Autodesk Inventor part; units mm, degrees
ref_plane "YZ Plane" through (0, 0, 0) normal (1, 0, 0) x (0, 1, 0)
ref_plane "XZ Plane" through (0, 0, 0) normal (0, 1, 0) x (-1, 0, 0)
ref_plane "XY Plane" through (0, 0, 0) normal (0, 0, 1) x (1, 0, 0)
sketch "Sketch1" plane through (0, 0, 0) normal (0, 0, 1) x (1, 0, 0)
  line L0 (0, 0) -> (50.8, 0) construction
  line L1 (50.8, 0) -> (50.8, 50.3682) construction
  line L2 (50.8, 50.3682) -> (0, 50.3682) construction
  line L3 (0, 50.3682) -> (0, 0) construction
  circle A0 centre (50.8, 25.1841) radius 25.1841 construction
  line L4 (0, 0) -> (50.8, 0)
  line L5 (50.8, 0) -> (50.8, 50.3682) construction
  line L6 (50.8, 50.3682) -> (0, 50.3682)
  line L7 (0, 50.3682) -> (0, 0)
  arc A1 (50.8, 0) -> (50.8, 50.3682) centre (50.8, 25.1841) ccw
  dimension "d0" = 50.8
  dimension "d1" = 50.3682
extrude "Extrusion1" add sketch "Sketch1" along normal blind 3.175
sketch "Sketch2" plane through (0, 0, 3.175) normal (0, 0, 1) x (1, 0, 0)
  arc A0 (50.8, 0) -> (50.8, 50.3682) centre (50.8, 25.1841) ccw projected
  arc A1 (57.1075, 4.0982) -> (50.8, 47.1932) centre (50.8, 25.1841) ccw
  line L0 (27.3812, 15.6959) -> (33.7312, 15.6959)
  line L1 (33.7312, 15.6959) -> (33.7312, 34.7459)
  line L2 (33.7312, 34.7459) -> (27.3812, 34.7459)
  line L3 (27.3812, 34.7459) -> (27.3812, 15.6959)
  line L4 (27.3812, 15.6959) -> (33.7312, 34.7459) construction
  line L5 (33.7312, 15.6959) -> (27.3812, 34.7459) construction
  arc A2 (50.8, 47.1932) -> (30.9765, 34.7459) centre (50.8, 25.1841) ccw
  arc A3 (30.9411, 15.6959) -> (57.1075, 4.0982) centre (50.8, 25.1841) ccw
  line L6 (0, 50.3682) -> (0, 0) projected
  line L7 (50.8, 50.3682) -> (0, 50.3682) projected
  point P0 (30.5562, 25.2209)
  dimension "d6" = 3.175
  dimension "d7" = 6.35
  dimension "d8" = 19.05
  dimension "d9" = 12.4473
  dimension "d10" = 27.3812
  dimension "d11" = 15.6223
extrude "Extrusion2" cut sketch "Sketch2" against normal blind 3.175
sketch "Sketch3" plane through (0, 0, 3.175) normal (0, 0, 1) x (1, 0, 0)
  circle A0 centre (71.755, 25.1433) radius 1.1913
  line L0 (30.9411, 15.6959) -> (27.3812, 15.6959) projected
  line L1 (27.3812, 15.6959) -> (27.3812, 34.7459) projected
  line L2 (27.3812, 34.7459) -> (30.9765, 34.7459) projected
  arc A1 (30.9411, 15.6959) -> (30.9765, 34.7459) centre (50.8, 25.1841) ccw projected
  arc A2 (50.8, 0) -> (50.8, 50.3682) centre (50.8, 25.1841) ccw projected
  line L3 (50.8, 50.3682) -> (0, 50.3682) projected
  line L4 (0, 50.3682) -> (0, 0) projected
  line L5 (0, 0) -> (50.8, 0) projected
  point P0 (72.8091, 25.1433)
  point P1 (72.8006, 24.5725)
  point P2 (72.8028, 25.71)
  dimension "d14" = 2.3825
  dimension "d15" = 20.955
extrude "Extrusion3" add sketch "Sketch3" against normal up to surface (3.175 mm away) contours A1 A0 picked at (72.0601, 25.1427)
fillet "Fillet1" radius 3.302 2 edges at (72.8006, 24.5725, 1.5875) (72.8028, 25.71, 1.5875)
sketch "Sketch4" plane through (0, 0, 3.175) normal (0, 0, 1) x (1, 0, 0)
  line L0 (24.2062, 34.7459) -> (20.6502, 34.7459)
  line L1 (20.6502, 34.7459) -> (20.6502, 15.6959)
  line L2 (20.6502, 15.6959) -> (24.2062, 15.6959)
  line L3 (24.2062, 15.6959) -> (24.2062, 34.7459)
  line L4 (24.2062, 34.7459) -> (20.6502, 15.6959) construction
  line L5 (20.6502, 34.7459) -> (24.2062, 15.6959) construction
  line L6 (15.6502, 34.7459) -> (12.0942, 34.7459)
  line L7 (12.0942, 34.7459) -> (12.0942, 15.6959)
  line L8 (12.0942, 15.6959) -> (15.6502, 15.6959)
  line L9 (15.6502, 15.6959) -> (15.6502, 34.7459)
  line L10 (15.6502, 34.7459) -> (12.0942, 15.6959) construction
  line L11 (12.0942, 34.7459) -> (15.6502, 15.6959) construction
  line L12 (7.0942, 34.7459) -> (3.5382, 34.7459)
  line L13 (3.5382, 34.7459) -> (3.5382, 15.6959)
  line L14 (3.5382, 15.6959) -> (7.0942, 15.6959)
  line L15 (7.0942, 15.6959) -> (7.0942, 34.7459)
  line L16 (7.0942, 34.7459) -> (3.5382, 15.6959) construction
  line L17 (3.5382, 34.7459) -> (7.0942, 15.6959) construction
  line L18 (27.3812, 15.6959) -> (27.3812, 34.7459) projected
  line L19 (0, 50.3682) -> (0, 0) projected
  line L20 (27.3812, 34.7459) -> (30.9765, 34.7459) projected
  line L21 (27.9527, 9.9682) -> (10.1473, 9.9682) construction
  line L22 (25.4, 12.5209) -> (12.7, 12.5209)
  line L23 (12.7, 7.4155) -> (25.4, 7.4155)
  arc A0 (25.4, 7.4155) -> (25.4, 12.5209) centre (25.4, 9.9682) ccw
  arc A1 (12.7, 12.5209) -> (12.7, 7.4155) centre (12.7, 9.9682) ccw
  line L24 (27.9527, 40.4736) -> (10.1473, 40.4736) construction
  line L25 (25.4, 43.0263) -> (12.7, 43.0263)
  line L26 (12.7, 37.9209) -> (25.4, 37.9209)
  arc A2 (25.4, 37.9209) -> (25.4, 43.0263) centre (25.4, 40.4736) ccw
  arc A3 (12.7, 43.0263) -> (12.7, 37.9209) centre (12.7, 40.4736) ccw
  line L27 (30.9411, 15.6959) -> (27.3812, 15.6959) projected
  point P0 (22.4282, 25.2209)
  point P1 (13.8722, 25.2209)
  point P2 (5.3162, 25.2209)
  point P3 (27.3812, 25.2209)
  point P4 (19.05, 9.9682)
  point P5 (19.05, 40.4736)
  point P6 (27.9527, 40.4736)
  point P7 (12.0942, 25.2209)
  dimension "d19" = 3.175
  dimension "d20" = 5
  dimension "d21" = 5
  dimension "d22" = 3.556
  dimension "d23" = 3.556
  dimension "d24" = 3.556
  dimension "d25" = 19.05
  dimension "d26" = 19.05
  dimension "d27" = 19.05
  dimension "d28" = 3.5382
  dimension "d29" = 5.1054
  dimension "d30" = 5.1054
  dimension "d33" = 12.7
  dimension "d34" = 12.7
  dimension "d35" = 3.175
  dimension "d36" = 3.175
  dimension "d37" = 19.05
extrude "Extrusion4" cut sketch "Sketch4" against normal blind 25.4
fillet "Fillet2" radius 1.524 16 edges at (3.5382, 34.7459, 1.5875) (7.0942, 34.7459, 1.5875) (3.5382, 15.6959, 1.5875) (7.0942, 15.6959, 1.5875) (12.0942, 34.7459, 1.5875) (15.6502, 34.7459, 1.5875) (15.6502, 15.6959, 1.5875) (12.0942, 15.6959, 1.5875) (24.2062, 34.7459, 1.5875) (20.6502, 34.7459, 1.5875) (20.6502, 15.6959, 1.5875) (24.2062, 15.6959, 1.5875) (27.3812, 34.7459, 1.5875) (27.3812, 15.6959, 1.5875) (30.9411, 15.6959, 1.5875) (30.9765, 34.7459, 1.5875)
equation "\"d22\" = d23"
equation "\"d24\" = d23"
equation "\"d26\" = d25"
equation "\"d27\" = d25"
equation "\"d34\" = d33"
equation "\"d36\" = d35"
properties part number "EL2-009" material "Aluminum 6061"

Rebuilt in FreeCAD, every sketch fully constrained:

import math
import FreeCAD as App
import Part
import Sketcher
from FreeCAD import Vector
Q = App.Units.Quantity


def edges_at(feature, points):
    """Names of the edges that pass closest to the given points."""
    edges = feature.Shape.Edges
    near = lambda p: min(range(len(edges)), key=lambda i: edges[i].distToShape(Part.Vertex(*p))[0])
    return sorted({f"Edge{near(p) + 1}" for p in points})


def add_polygon(sketch, points):
    """Adds a closed chain of lines whose ends are joined by coincident constraints."""
    first, n = sketch.GeometryCount, len(points)
    for a, b in zip(points, points[1:] + points[:1]):
        sketch.addGeometry(Part.LineSegment(App.Vector(*a, 0), App.Vector(*b, 0)), False)
    for i in range(n):
        sketch.addConstraint(Sketcher.Constraint("Coincident", first + i, 2, first + (i + 1) % n, 1))

doc = App.newDocument("Part")
body = doc.addObject("PartDesign::Body", "Body")

# Sketch on XY plane
sketch1 = doc.addObject("Sketcher::SketchObject", "Sketch")
body.addObject(sketch1)
sketch1.AttachmentSupport = (doc.XY_Plane, [""])
sketch1.MapMode = "FlatFace"
sketch1.addGeometry([
    Part.LineSegment(Vector(0, 50, 0), Vector(0, 0, 0)),
    Part.LineSegment(Vector(0, 0, 0), Vector(51, 0, 0)),
    Part.ArcOfCircle(Part.Circle(Vector(51, 25, 0), Vector(0, 0, 1), 25), math.radians(-90), math.radians(90)),
    Part.LineSegment(Vector(51, 50, 0), Vector(0, 50, 0)),
], False)
sketch1.addConstraint([
    Sketcher.Constraint("Coincident", 0, 2, 1, 1),
    Sketcher.Constraint("Tangent", 1, 2, 2, 1),
    Sketcher.Constraint("Tangent", 2, 2, 3, 1),
    Sketcher.Constraint("Coincident", 3, 2, 0, 1),
    Sketcher.Constraint("Vertical", 0),
    Sketcher.Constraint("Horizontal", 1),
    Sketcher.Constraint("Horizontal", 3),
    Sketcher.Constraint("Coincident", 0, 2, -1, 1),
    Sketcher.Constraint("DistanceX", 1, 1, 1, 2, Q("2 in")),
    Sketcher.Constraint("Radius", 2, Q("0.9915 in")),
])
pad1 = doc.addObject("PartDesign::Pad", "Pad")
body.addObject(pad1)
pad1.Profile = sketch1
pad1.Length = Q("0.125 in")

# Sketch on XY plane
sketch2 = doc.addObject("Sketcher::SketchObject", "Sketch001")
body.addObject(sketch2)
sketch2.AttachmentSupport = (doc.XY_Plane, [""])
sketch2.MapMode = "FlatFace"
sketch2.AttachmentOffset = App.Placement(Vector(0, 0, 0.125 * 25.4), App.Rotation())
sketch2.addGeometry([
    Part.ArcOfCircle(Part.Circle(Vector(50.8, 25.2, 0), Vector(0, 0, 1), 22), math.radians(-154), math.radians(-73)),  # 0
    Part.ArcOfCircle(Part.Circle(Vector(50.8, 25.2, 0), Vector(0, 0, 1), 22), math.radians(-73), math.radians(90)),  # 1
    Part.ArcOfCircle(Part.Circle(Vector(50.8, 25.2, 0), Vector(0, 0, 1), 22), math.radians(90), math.radians(154)),  # 2
    Part.LineSegment(Vector(31, 34.7, 0), Vector(27.4, 34.7, 0)),  # 3
    Part.LineSegment(Vector(27.4, 34.7, 0), Vector(27.4, 15.7, 0)),  # 4
    Part.LineSegment(Vector(27.4, 15.7, 0), Vector(30.9, 15.7, 0)),  # 5
], False)
sketch2.addConstraint([
    Sketcher.Constraint("Tangent", 0, 2, 1, 1),
    Sketcher.Constraint("Tangent", 1, 2, 2, 1),
    Sketcher.Constraint("Coincident", 2, 2, 3, 1),
    Sketcher.Constraint("Coincident", 3, 2, 4, 1),
    Sketcher.Constraint("Coincident", 4, 2, 5, 1),
    Sketcher.Constraint("Coincident", 5, 2, 0, 1),
    Sketcher.Constraint("Horizontal", 3),
    Sketcher.Constraint("Vertical", 4),
    Sketcher.Constraint("Horizontal", 5),
    Sketcher.Constraint("Coincident", 2, 3, 0, 3),
    Sketcher.Constraint("Vertical", 2, 3, 1, 2),
    Sketcher.Constraint("DistanceY", 4, 2, 4, 1, Q("0.75 in")),
    Sketcher.Constraint("DistanceX", -1, 1, 0, 3, Q("2 in")),
    Sketcher.Constraint("DistanceX", -1, 1, 3, 2, Q("1.078 in")),
    Sketcher.Constraint("Radius", 0, Q("0.8665 in")),
    Sketcher.Constraint("DistanceY", 2, 2, 1, 2, 12.4473),
    Sketcher.Constraint("DistanceY", -1, 1, 1, 2, Q("1.858 in")),
    Sketcher.Constraint("DistanceY", 0, 2, 2, 2, Q("1.2066 in")),
])
pocket1 = doc.addObject("PartDesign::Pocket", "Pocket")
body.addObject(pocket1)
pocket1.Profile = sketch2
pocket1.Length = Q("0.125 in")

# Sketch on XY plane
sketch3 = doc.addObject("Sketcher::SketchObject", "Sketch002")
body.addObject(sketch3)
sketch3.AttachmentSupport = (doc.XY_Plane, [""])
sketch3.MapMode = "FlatFace"
sketch3.AttachmentOffset = App.Placement(Vector(0, 0, 0.125 * 25.4), App.Rotation())
sketch3.addGeometry([
    Part.ArcOfCircle(Part.Circle(Vector(50.8, 25.2, 0), Vector(0, 0, 1), 22), math.radians(-1.59), math.radians(1.37)),
    Part.ArcOfCircle(Part.Circle(Vector(71.8, 25.1, 0), Vector(0, 0, 1), 1.2), math.radians(28), math.radians(331)),
], False)
sketch3.addConstraint([
    Sketcher.Constraint("Coincident", 0, 1, 1, 2),
    Sketcher.Constraint("Coincident", 1, 1, 0, 2),
    Sketcher.Constraint("Radius", 1, Q("0.0469 in")),
    Sketcher.Constraint("DistanceX", -1, 1, 0, 3, Q("2 in")),
    Sketcher.Constraint("DistanceX", 0, 3, 1, 3, Q("0.825 in")),
    Sketcher.Constraint("Radius", 0, Q("0.8665 in")),
    Sketcher.Constraint("DistanceY", -1, 1, 0, 3, Q("0.9915 in")),
    Sketcher.Constraint("DistanceY", -1, 1, 1, 3, Q("0.9899 in")),
])
pad2 = doc.addObject("PartDesign::Pad", "Pad001")
body.addObject(pad2)
pad2.Profile = sketch3
pad2.Length = Q("0.125 in")
pad2.Reversed = True
doc.recompute()

fillet = doc.addObject("PartDesign::Fillet", "Fillet")
body.addObject(fillet)
fillet.Base = (pad2, edges_at(pad2, [(72.801, 24.573, 1.587), (72.803, 25.71, 1.587)]))
fillet.Radius = Q("0.13 in")

# Sketch on XY plane
sketch4 = doc.addObject("Sketcher::SketchObject", "Sketch003")
body.addObject(sketch4)
sketch4.AttachmentSupport = (doc.XY_Plane, [""])
sketch4.MapMode = "FlatFace"
sketch4.AttachmentOffset = App.Placement(Vector(0, 0, 0.125 * 25.4), App.Rotation())
add_polygon(sketch4, [(24.2, 15.7), (24.2, 34.7), (20.7, 34.7), (20.7, 15.7)])  # lines 0-3
add_polygon(sketch4, [(15.7, 15.7), (15.7, 34.7), (12.1, 34.7), (12.1, 15.7)])  # lines 4-7
add_polygon(sketch4, [(7.1, 15.7), (7.1, 34.7), (3.5, 34.7), (3.5, 15.7)])  # lines 8-11
sketch4.addGeometry(Part.ArcOfCircle(Part.Circle(Vector(25.4, 10, 0), Vector(0, 0, 1), 2.6), math.radians(-90), math.radians(90)), False)  # 12
sketch4.addGeometry(Part.LineSegment(Vector(25.4, 12.5, 0), Vector(12.7, 12.5, 0)), False)  # 13
sketch4.addGeometry(Part.ArcOfCircle(Part.Circle(Vector(12.7, 10, 0), Vector(0, 0, 1), 2.6), math.radians(90), math.radians(270)), False)  # 14
sketch4.addGeometry(Part.LineSegment(Vector(12.7, 7.4, 0), Vector(25.4, 7.4, 0)), False)  # 15
sketch4.addGeometry(Part.ArcOfCircle(Part.Circle(Vector(25.4, 40.5, 0), Vector(0, 0, 1), 2.6), math.radians(-90), math.radians(90)), False)  # 16
sketch4.addGeometry(Part.LineSegment(Vector(25.4, 43, 0), Vector(12.7, 43, 0)), False)  # 17
sketch4.addGeometry(Part.ArcOfCircle(Part.Circle(Vector(12.7, 40.5, 0), Vector(0, 0, 1), 2.6), math.radians(90), math.radians(270)), False)  # 18
sketch4.addGeometry(Part.LineSegment(Vector(12.7, 37.9, 0), Vector(25.4, 37.9, 0)), False)  # 19
sketch4.addConstraint([
    Sketcher.Constraint("Tangent", 12, 2, 13, 1),
    Sketcher.Constraint("Tangent", 13, 2, 14, 1),
    Sketcher.Constraint("Tangent", 14, 2, 15, 1),
    Sketcher.Constraint("Tangent", 15, 2, 12, 1),
    Sketcher.Constraint("Tangent", 16, 2, 17, 1),
    Sketcher.Constraint("Tangent", 17, 2, 18, 1),
    Sketcher.Constraint("Tangent", 18, 2, 19, 1),
    Sketcher.Constraint("Tangent", 19, 2, 16, 1),
    Sketcher.Constraint("Vertical", 0),
    Sketcher.Constraint("Horizontal", 1),
    Sketcher.Constraint("Vertical", 2),
    Sketcher.Constraint("Horizontal", 3),
    Sketcher.Constraint("Vertical", 4),
    Sketcher.Constraint("Horizontal", 5),
    Sketcher.Constraint("Vertical", 6),
    Sketcher.Constraint("Horizontal", 7),
    Sketcher.Constraint("Vertical", 8),
    Sketcher.Constraint("Horizontal", 9),
    Sketcher.Constraint("Vertical", 10),
    Sketcher.Constraint("Horizontal", 11),
    Sketcher.Constraint("Horizontal", 13),
    Sketcher.Constraint("Horizontal", 15),
    Sketcher.Constraint("Horizontal", 17),
    Sketcher.Constraint("Horizontal", 19),
    Sketcher.Constraint("Equal", 14, 16),
    Sketcher.Constraint("Horizontal", 1, 2, 4, 2),
    Sketcher.Constraint("Horizontal", 3, 2, 6, 2),
    Sketcher.Constraint("Horizontal", 5, 2, 8, 2),
    Sketcher.Constraint("Horizontal", 7, 2, 10, 2),
    Sketcher.Constraint("Vertical", 12, 3, 16, 3),
    Sketcher.Constraint("Vertical", 14, 3, 18, 3),
    Sketcher.Constraint("Equal", 3, 5),
    Sketcher.Constraint("Equal", 7, 9),
    Sketcher.Constraint("DistanceX", 13, 2, 13, 1, Q("0.5 in")),
    Sketcher.Constraint("DistanceX", 1, 2, 1, 1, Q("0.14 in")),
    Sketcher.Constraint("DistanceY", 0, 1, 0, 2, Q("0.75 in")),
    Sketcher.Constraint("DistanceX", -1, 1, 14, 3, Q("0.5 in")),
    Sketcher.Constraint("Radius", 12, Q("0.1005 in")),
    Sketcher.Constraint("DistanceY", 12, 2, 3, 2, Q("0.125 in")),
    Sketcher.Constraint("DistanceY", 5, 2, 18, 2, Q("0.125 in")),
    Sketcher.Constraint("DistanceX", -1, 1, 9, 2, Q("0.1393 in")),
    Sketcher.Constraint("DistanceX", 4, 2, 1, 2, 5.0),
    Sketcher.Constraint("DistanceX", 8, 2, 5, 2, 5.0),
    Sketcher.Constraint("DistanceY", -1, 1, 12, 3, 9.9682),
])
pocket2 = doc.addObject("PartDesign::Pocket", "Pocket001")
body.addObject(pocket2)
pocket2.Profile = sketch4
pocket2.Length = Q("1 in")
doc.recompute()

fillet2 = doc.addObject("PartDesign::Fillet", "Fillet001")
body.addObject(fillet2)
fillet2.Base = (pocket2, edges_at(pocket2, [
    (3.538, 34.746, 1.587),
    (7.094, 34.746, 1.587),
    (3.538, 15.696, 1.587),
    (7.094, 15.696, 1.587),
    (12.094, 34.746, 1.587),
    (15.65, 34.746, 1.587),
    (15.65, 15.696, 1.587),
    (12.094, 15.696, 1.587),
    (24.206, 34.746, 1.587),
    (20.65, 34.746, 1.587),
    (20.65, 15.696, 1.587),
    (24.206, 15.696, 1.587),
    (27.381, 34.746, 1.587),
    (27.381, 15.696, 1.587),
    (30.941, 15.696, 1.587),
    (30.977, 34.746, 1.587),
]))
fillet2.Radius = Q("0.06 in")

doc.recompute()
